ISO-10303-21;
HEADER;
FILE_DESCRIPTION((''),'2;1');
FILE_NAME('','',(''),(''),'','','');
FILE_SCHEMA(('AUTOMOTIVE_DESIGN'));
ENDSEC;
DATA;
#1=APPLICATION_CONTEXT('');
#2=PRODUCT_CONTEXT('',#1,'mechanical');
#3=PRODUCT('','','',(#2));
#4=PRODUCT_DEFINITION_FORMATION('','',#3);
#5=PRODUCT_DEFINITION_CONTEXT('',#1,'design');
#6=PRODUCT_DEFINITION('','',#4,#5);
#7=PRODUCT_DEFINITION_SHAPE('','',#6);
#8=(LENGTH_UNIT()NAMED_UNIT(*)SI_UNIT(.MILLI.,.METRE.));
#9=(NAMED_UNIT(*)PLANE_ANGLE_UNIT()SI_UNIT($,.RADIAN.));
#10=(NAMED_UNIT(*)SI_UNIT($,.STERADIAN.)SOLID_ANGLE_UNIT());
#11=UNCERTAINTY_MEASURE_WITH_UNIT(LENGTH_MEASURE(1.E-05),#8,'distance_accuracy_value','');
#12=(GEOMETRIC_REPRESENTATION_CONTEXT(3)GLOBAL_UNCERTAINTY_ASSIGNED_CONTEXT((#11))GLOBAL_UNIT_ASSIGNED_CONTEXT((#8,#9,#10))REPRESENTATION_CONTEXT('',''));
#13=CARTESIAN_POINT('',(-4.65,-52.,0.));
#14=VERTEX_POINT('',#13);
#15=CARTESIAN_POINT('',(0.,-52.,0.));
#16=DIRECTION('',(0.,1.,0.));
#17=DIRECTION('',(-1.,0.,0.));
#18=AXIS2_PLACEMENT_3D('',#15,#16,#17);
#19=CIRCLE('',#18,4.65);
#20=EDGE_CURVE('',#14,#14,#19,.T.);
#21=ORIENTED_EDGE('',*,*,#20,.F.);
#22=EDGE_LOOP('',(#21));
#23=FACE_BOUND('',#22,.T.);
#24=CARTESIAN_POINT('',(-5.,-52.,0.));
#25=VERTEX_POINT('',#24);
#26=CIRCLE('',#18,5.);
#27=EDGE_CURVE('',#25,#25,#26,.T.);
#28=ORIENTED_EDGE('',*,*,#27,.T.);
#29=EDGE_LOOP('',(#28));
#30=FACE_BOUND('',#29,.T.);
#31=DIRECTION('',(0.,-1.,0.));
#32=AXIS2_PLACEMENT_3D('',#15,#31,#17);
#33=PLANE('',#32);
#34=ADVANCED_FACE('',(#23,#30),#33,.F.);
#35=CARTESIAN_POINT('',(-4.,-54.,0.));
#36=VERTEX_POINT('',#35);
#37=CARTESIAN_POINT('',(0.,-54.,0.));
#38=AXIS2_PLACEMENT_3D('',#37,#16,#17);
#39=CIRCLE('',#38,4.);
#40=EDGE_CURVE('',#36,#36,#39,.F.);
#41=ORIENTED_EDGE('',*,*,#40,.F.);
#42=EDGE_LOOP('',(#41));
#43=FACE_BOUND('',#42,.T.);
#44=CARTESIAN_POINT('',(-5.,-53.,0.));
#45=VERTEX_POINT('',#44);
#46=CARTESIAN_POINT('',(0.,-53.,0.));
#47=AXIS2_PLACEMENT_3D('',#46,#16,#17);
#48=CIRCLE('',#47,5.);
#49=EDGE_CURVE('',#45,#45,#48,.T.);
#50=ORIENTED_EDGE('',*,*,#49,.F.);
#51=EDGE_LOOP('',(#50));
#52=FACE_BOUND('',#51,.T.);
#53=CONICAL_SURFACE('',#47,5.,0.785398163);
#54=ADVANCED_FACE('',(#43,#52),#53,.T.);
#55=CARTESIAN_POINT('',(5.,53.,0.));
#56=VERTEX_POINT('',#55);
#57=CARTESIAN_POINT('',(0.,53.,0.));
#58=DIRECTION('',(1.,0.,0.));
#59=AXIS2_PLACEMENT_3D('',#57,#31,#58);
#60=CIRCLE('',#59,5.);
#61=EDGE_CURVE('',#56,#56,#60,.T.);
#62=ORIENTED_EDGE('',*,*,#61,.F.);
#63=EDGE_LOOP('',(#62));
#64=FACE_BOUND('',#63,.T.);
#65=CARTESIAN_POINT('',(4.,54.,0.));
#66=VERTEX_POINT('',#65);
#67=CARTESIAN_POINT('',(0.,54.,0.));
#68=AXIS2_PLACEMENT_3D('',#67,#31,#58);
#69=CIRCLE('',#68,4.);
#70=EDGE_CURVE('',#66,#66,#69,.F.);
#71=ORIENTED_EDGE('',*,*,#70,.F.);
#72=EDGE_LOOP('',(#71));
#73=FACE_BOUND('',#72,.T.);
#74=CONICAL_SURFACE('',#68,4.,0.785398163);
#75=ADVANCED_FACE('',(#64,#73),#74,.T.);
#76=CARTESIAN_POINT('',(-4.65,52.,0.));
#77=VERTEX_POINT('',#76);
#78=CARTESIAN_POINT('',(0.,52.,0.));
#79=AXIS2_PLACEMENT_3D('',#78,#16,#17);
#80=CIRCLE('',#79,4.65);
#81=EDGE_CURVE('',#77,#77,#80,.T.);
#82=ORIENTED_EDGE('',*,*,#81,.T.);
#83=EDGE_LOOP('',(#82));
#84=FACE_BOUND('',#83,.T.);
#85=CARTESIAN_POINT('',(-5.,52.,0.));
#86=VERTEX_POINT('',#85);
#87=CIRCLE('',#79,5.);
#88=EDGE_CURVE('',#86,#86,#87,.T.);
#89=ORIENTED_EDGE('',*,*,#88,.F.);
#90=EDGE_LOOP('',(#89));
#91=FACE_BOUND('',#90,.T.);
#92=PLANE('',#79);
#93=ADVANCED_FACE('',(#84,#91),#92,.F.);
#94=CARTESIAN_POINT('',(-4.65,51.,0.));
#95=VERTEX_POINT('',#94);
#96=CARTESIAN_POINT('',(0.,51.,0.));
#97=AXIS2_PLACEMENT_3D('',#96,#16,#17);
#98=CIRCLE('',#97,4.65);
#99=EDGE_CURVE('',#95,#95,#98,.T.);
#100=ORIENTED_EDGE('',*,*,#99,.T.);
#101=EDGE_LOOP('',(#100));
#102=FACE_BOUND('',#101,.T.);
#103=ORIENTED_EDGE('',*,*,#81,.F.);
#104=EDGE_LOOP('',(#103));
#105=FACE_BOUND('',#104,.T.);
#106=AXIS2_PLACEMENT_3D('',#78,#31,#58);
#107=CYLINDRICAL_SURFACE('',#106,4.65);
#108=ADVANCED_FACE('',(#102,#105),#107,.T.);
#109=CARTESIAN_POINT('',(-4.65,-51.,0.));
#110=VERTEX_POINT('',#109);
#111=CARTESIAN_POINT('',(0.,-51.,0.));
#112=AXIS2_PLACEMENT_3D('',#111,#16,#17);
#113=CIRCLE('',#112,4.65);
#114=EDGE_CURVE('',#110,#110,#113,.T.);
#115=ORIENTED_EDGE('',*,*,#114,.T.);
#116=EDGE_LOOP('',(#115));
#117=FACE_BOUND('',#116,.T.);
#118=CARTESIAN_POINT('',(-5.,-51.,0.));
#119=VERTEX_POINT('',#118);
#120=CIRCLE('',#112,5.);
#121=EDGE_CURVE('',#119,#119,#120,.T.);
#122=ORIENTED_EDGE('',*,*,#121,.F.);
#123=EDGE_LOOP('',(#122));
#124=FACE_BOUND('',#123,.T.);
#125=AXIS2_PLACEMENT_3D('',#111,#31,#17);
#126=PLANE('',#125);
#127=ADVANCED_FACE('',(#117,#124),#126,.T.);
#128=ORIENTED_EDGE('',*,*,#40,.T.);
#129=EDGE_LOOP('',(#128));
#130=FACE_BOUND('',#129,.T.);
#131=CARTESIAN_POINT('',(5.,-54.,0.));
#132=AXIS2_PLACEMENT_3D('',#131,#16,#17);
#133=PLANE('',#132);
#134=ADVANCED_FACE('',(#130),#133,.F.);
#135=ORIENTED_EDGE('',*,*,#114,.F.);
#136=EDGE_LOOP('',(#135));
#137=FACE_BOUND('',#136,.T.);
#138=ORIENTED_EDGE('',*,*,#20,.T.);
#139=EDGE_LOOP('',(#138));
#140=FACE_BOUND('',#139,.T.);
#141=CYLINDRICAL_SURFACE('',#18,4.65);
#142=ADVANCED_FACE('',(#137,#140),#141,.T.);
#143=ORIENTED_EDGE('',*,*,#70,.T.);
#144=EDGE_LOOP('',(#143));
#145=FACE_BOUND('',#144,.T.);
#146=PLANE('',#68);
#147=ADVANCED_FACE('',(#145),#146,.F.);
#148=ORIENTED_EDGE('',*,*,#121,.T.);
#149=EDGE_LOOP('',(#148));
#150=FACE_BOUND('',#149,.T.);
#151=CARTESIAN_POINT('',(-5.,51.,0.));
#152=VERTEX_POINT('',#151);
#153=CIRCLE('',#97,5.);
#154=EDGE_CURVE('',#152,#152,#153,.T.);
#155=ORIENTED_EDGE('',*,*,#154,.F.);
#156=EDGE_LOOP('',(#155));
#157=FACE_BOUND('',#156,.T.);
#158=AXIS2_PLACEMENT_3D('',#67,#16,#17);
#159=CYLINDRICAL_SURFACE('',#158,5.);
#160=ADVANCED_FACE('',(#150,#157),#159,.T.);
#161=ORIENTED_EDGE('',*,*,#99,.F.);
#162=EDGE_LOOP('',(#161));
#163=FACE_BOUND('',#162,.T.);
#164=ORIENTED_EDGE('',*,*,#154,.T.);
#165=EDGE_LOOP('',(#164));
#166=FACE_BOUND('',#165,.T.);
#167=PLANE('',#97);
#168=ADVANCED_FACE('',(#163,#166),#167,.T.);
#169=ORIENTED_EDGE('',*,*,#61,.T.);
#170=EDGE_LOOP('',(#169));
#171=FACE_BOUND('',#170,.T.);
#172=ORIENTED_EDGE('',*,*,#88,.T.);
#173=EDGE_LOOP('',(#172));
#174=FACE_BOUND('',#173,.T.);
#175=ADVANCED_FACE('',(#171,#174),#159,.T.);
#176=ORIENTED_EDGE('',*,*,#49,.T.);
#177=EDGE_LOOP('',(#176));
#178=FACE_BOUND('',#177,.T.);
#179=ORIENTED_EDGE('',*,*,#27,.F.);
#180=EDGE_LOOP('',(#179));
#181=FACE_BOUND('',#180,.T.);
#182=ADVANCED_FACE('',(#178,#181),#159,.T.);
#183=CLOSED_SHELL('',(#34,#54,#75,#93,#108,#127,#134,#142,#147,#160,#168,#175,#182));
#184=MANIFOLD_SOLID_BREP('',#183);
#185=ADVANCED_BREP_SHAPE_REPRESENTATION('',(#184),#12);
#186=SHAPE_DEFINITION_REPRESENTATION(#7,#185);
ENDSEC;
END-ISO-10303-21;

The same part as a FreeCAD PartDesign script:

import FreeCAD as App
import Part
import Sketcher
Q = App.Units.Quantity


def edges_at(feature, points):
    """Names of the edges that pass closest to the given points."""
    edges = feature.Shape.Edges
    near = lambda p: min(range(len(edges)), key=lambda i: edges[i].distToShape(Part.Vertex(*p))[0])
    return sorted({f"Edge{near(p) + 1}" for p in points})


def add_polygon(sketch, points):
    """Adds a closed chain of lines whose ends are joined by coincident constraints."""
    first, n = sketch.GeometryCount, len(points)
    for a, b in zip(points, points[1:] + points[:1]):
        sketch.addGeometry(Part.LineSegment(App.Vector(*a, 0), App.Vector(*b, 0)), False)
    for i in range(n):
        sketch.addConstraint(Sketcher.Constraint("Coincident", first + i, 2, first + (i + 1) % n, 1))

doc = App.newDocument("Part")
body = doc.addObject("PartDesign::Body", "Body")

sketch1 = body.newObject("Sketcher::SketchObject", "Sketch")
sketch1.AttachmentSupport = (doc.getObject("XY_Plane"), [""])
sketch1.MapMode = "FlatFace"
add_polygon(sketch1, [(5, 54), (0, 54), (0, -54), (5, -54)])
sketch1.addConstraint(Sketcher.Constraint("Horizontal", 0))
sketch1.addConstraint(Sketcher.Constraint("Vertical", 1))
sketch1.addConstraint(Sketcher.Constraint("Horizontal", 2))
sketch1.addConstraint(Sketcher.Constraint("Vertical", 3))
sketch1.addConstraint(Sketcher.Constraint("Symmetric", 0, 2, 1, 2, -1, 1))
sketch1.addConstraint(Sketcher.Constraint("DistanceX", 0, 2, 0, 1, Q("5 mm")))
sketch1.addConstraint(Sketcher.Constraint("DistanceY", 1, 2, 1, 1, Q("108 mm")))
revolution = body.newObject("PartDesign::Revolution", "Revolution")
revolution.Profile = sketch1
revolution.ReferenceAxis = (sketch1, ["V_Axis"])
revolution.Angle = 360
doc.recompute()

chamfer = body.newObject("PartDesign::Chamfer", "Chamfer")
chamfer.Base = (revolution, edges_at(revolution, [(5, -54, 0), (5, 54, 0)]))
chamfer.Size = 1

sketch2 = body.newObject("Sketcher::SketchObject", "Sketch001")
sketch2.AttachmentSupport = (doc.getObject("XZ_Plane"), [""])
sketch2.MapMode = "FlatFace"
sketch2.AttachmentOffset = App.Placement(App.Vector(0, 0, -51), App.Rotation())
sketch2.addGeometry(Part.Circle(App.Vector(0, 0, 0), App.Vector(0, 0, 1), 5), False)
sketch2.addGeometry(Part.Circle(App.Vector(0, 0, 0), App.Vector(0, 0, 1), 4.7), False)
sketch2.addConstraint(Sketcher.Constraint("Coincident", 0, 3, -1, 1))
sketch2.addConstraint(Sketcher.Constraint("Coincident", 1, 3, -1, 1))
sketch2.addConstraint(Sketcher.Constraint("Diameter", 0, Q("10 mm")))
sketch2.addConstraint(Sketcher.Constraint("Diameter", 1, Q("9.3 mm")))
pocket1 = body.newObject("PartDesign::Pocket", "Pocket")
pocket1.Profile = sketch2
pocket1.Length = 1
doc.recompute()

mirrored = body.newObject("PartDesign::Mirrored", "Mirrored")
mirrored.Originals = [pocket1]
mirrored.MirrorPlane = (doc.getObject("XZ_Plane"), [""])
body.Tip = mirrored

doc.recompute()
